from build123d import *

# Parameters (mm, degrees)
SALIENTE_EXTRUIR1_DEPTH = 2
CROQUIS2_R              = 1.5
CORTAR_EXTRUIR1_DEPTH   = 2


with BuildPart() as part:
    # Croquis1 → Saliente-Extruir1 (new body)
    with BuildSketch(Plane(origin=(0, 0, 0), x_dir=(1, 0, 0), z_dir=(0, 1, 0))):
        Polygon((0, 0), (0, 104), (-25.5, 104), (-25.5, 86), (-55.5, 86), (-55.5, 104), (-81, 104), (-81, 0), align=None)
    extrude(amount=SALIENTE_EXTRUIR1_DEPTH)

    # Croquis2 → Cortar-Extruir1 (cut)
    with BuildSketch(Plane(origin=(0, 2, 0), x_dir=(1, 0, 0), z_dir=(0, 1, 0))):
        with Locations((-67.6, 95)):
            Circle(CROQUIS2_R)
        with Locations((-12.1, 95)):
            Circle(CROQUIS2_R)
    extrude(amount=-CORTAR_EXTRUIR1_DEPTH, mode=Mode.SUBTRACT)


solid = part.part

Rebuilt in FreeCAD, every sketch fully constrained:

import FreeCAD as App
import Part
import Sketcher
Q = App.Units.Quantity


def add_polygon(sketch, points):
    """Adds a closed chain of lines whose ends are joined by coincident constraints."""
    first, n = sketch.GeometryCount, len(points)
    for a, b in zip(points, points[1:] + points[:1]):
        sketch.addGeometry(Part.LineSegment(App.Vector(*a, 0), App.Vector(*b, 0)), False)
    for i in range(n):
        sketch.addConstraint(Sketcher.Constraint("Coincident", first + i, 2, first + (i + 1) % n, 1))

doc = App.newDocument("Part")
body = doc.addObject("PartDesign::Body", "Body")

sketch1 = doc.addObject("Sketcher::SketchObject", "Sketch")
body.addObject(sketch1)
sketch1.AttachmentSupport = (doc.XZ_Plane, [""])
sketch1.MapMode = "FlatFace"
add_polygon(sketch1, [(0, 0), (0, -104), (-26, -104), (-26, -86), (-56, -86), (-56, -104), (-81, -104), (-81, 0)])
sketch1.addConstraint([
    Sketcher.Constraint("Vertical", 0),
    Sketcher.Constraint("Horizontal", 1),
    Sketcher.Constraint("Vertical", 2),
    Sketcher.Constraint("Horizontal", 3),
    Sketcher.Constraint("Vertical", 4),
    Sketcher.Constraint("Horizontal", 5),
    Sketcher.Constraint("Vertical", 6),
    Sketcher.Constraint("Horizontal", 7),
    Sketcher.Constraint("Coincident", 7, 2, -1, 1),
    Sketcher.Constraint("Horizontal", 1, 2, 4, 2),
    Sketcher.Constraint("Equal", 1, 5),
    Sketcher.Constraint("DistanceX", 3, 2, 3, 1, Q("30 mm")),
    Sketcher.Constraint("DistanceX", 7, 1, 7, 2, Q("81 mm")),
    Sketcher.Constraint("DistanceY", 0, 2, 0, 1, Q("104 mm")),
    Sketcher.Constraint("DistanceY", 2, 1, 2, 2, Q("18 mm")),
])
pad1 = doc.addObject("PartDesign::Pad", "Pad")
body.addObject(pad1)
pad1.Profile = sketch1
pad1.Length = 2
pad1.Reversed = True

sketch2 = doc.addObject("Sketcher::SketchObject", "Sketch001")
body.addObject(sketch2)
sketch2.AttachmentSupport = (doc.XZ_Plane, [""])
sketch2.MapMode = "FlatFace"
sketch2.AttachmentOffset = App.Placement(App.Vector(0, 0, -2), App.Rotation())
sketch2.addGeometry([
    Part.Circle(App.Vector(-67.6, -95, 0), App.Vector(0, 0, 1), 1.5),
    Part.Circle(App.Vector(-12.1, -95, 0), App.Vector(0, 0, 1), 1.5),
], False)
sketch2.addConstraint([
    Sketcher.Constraint("Equal", 0, 1),
    Sketcher.Constraint("Horizontal", 0, 3, 1, 3),
    Sketcher.Constraint("Diameter", 0, Q("3 mm")),
    Sketcher.Constraint("DistanceY", 0, 3, -1, 1, Q("95 mm")),
    Sketcher.Constraint("DistanceX", 0, 3, -1, 1, Q("67.6 mm")),
    Sketcher.Constraint("DistanceX", 1, 3, -1, 1, Q("12.1 mm")),
])
pocket1 = doc.addObject("PartDesign::Pocket", "Pocket")
body.addObject(pocket1)
pocket1.Profile = sketch2
pocket1.Length = 2
pocket1.Reversed = True

doc.recompute()
